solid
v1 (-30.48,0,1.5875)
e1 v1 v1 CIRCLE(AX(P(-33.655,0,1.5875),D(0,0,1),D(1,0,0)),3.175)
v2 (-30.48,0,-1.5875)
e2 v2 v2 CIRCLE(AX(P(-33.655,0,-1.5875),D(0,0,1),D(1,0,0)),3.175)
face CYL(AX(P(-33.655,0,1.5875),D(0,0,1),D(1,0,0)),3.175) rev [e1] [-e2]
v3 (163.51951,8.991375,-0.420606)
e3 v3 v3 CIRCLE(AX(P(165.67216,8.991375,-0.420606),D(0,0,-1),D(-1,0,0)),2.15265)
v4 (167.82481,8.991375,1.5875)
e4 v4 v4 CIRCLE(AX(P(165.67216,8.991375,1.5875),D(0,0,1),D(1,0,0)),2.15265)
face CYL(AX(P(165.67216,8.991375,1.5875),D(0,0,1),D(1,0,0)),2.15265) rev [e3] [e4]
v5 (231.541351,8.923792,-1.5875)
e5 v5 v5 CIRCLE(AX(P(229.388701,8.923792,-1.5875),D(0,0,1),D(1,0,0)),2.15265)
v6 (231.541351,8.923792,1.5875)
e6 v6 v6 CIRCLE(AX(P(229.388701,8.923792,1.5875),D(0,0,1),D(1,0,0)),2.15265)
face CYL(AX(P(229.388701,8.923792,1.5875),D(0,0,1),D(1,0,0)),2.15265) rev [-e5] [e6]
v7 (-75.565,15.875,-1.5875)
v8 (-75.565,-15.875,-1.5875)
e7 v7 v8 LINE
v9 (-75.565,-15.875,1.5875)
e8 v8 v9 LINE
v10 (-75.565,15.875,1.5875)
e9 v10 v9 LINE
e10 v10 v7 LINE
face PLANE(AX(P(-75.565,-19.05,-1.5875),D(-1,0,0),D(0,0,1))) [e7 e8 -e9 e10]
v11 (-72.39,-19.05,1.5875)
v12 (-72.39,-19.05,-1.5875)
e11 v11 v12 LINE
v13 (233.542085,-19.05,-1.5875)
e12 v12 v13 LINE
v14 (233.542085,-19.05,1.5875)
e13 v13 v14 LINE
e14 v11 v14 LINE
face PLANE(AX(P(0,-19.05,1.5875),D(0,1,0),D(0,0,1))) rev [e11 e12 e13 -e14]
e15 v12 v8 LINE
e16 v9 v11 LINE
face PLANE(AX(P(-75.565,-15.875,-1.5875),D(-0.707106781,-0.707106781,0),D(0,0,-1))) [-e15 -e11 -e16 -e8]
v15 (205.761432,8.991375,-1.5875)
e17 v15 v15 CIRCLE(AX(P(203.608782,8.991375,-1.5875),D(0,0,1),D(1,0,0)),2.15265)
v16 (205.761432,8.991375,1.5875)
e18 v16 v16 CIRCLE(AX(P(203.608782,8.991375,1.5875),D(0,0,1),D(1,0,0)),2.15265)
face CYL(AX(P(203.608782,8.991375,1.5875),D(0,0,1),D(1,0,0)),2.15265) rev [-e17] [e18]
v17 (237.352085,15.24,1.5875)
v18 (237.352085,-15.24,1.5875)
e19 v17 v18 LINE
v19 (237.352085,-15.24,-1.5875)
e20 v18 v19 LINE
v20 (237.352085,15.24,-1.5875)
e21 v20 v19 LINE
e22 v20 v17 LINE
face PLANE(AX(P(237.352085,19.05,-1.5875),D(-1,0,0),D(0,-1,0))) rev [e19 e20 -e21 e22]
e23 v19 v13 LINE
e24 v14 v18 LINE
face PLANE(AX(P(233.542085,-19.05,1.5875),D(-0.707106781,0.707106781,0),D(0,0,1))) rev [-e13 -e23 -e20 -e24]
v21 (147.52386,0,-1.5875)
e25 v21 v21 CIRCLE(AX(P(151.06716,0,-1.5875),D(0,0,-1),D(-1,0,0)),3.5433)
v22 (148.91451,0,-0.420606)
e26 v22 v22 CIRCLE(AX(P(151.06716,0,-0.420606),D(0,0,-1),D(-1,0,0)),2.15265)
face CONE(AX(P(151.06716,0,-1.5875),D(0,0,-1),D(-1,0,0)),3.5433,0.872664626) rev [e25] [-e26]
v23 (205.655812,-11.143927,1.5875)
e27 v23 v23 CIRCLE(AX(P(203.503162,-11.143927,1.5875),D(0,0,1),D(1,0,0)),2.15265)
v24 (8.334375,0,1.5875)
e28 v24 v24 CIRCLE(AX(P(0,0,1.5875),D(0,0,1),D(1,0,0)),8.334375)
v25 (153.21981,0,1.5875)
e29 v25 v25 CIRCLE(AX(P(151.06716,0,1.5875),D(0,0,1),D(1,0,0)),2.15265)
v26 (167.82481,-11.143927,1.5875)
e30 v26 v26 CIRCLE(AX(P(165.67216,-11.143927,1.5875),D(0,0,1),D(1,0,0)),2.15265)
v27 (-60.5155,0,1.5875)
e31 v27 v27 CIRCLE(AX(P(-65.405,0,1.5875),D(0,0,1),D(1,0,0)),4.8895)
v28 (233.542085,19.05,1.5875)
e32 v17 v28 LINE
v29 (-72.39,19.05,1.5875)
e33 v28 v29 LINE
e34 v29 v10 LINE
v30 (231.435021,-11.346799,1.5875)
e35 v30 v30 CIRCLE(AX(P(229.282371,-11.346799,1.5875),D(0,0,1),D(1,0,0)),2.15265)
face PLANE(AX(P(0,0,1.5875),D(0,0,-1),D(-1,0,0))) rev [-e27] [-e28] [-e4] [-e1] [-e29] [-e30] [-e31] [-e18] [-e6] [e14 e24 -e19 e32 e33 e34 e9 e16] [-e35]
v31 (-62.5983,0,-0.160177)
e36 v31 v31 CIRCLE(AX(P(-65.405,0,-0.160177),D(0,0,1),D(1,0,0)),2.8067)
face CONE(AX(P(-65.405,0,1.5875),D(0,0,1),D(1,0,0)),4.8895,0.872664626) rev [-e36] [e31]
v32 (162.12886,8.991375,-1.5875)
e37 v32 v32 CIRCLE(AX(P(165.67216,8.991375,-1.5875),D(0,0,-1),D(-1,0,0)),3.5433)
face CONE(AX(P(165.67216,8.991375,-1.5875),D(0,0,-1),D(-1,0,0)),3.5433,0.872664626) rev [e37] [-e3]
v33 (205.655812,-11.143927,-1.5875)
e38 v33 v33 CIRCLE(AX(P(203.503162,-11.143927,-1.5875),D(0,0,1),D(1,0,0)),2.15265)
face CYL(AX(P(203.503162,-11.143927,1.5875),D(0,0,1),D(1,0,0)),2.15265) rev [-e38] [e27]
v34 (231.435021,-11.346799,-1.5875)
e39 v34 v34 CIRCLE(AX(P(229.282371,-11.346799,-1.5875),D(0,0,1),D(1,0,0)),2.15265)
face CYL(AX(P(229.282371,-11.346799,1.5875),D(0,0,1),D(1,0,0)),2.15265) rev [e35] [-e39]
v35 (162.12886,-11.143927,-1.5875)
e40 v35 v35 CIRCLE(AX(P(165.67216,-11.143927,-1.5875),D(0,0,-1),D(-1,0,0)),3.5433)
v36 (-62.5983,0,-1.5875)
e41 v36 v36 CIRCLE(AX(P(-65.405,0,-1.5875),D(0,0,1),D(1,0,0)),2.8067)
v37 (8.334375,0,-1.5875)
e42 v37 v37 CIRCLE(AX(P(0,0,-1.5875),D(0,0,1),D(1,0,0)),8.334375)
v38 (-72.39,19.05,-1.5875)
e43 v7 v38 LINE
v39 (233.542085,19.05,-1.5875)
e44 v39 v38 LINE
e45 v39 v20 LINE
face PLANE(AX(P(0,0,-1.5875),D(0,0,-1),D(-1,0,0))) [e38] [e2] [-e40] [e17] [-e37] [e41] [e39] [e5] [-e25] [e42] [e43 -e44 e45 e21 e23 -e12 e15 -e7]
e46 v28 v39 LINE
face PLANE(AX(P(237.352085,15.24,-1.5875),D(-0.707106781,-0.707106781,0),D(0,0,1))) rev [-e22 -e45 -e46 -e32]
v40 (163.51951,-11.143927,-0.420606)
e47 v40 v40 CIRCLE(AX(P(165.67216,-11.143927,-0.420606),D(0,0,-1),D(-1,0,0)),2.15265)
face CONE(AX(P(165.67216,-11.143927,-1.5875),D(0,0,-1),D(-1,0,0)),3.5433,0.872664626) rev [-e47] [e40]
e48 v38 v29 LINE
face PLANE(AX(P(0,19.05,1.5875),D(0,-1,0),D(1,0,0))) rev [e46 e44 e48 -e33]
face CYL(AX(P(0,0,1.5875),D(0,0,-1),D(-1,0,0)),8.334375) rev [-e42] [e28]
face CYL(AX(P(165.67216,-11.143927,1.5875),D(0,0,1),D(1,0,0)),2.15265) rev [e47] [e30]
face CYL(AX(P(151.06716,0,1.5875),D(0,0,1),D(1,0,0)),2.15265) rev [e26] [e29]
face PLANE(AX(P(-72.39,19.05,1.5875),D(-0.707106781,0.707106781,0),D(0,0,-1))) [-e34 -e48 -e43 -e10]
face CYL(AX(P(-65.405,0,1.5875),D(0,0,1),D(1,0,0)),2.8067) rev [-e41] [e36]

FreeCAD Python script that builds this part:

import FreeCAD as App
import Part
import Sketcher
from FreeCAD import Vector
Q = App.Units.Quantity


def edges_at(feature, points):
    """Names of the edges that pass closest to the given points."""
    edges = feature.Shape.Edges
    near = lambda p: min(range(len(edges)), key=lambda i: edges[i].distToShape(Part.Vertex(*p))[0])
    return sorted({f"Edge{near(p) + 1}" for p in points})


def add_polygon(sketch, points):
    """Adds a closed chain of lines whose ends are joined by coincident constraints."""
    first, n = sketch.GeometryCount, len(points)
    for a, b in zip(points, points[1:] + points[:1]):
        sketch.addGeometry(Part.LineSegment(App.Vector(*a, 0), App.Vector(*b, 0)), False)
    for i in range(n):
        sketch.addConstraint(Sketcher.Constraint("Coincident", first + i, 2, first + (i + 1) % n, 1))

doc = App.newDocument("Part")
body = doc.addObject("PartDesign::Body", "Body")

# Sketch on XY plane
sketch1 = doc.addObject("Sketcher::SketchObject", "Sketch")
body.addObject(sketch1)
sketch1.AttachmentSupport = (doc.XY_Plane, [""])
sketch1.MapMode = "FlatFace"
add_polygon(sketch1, [(-29, 19), (-29, -19), (247, -19), (254, 19)])  # lines 0-3
sketch1.addGeometry(Part.Circle(Vector(0, 0, 0), Vector(0, 0, 1), 8), False)  # 4
sketch1.addConstraint([
    Sketcher.Constraint("Vertical", 0),
    Sketcher.Constraint("Horizontal", 1),
    Sketcher.Constraint("Horizontal", 3),
    Sketcher.Constraint("Coincident", 4, 3, -1, 1),
    Sketcher.Constraint("Diameter", 4, Q("0.65625 in")),
    Sketcher.Constraint("DistanceY", 0, 2, 0, 1, Q("1.5 in")),
    Sketcher.Constraint("DistanceX", -1, 1, 2, 2, Q("10 in")),
    Sketcher.Constraint("Angle", 2, Q("80 deg")),
    Sketcher.Constraint("DistanceX", 3, 2, 3, 1, Q("11.125 in")),
    Sketcher.Constraint("DistanceY", 0, 2, -1, 1, Q("0.75 in")),
])
pad1 = doc.addObject("PartDesign::Pad", "Pad")
body.addObject(pad1)
pad1.Profile = sketch1
pad1.Length = Q("0.125 in")
pad1.Midplane = True

# Sketch on XY plane
sketch2 = doc.addObject("Sketcher::SketchObject", "Sketch001")
body.addObject(sketch2)
sketch2.AttachmentSupport = (doc.XY_Plane, [""])
sketch2.MapMode = "FlatFace"
sketch2.AttachmentOffset = App.Placement(Vector(0, 0, 0.0625 * 25.4), App.Rotation())
sketch2.addGeometry([
    Part.Circle(Vector(229.4, 8.9, 0), Vector(0, 0, 1), 2.2),  # 0
    Part.Circle(Vector(229.3, -11.3, 0), Vector(0, 0, 1), 2.2),  # 1
    Part.Circle(Vector(203.5, -11.1, 0), Vector(0, 0, 1), 2.2),  # 2
    Part.Circle(Vector(203.6, 9, 0), Vector(0, 0, 1), 2.2),  # 3
    Part.Circle(Vector(165.7, 9, 0), Vector(0, 0, 1), 2.2),  # 4
    Part.Circle(Vector(165.7, -11.1, 0), Vector(0, 0, 1), 2.2),  # 5
    Part.Circle(Vector(151.1, 0, 0), Vector(0, 0, 1), 2.2),  # 6
], False)
sketch2.addConstraint([
    Sketcher.Constraint("Equal", 0, 1),
    Sketcher.Constraint("Equal", 1, 2),
    Sketcher.Constraint("Equal", 2, 3),
    Sketcher.Constraint("Equal", 3, 4),
    Sketcher.Constraint("Equal", 4, 5),
    Sketcher.Constraint("Equal", 5, 6),
    Sketcher.Constraint("PointOnObject", 6, 3, -1),
    Sketcher.Constraint("Horizontal", 3, 3, 4, 3),
    Sketcher.Constraint("Horizontal", 2, 3, 5, 3),
    Sketcher.Constraint("Vertical", 4, 3, 5, 3),
    Sketcher.Constraint("Diameter", 0, Q("0.1695 in")),
    Sketcher.Constraint("DistanceX", 6, 3, 4, 3, Q("0.575 in")),
    Sketcher.Constraint("DistanceX", -1, 1, 0, 3, 229.388701),
    Sketcher.Constraint("DistanceY", 1, 3, -1, 1, 11.346799),
    Sketcher.Constraint("DistanceY", -1, 1, 0, 3, 8.923792),
    Sketcher.Constraint("DistanceX", -1, 1, 1, 3, 229.282371),
    Sketcher.Constraint("DistanceX", -1, 1, 2, 3, 203.503162),
    Sketcher.Constraint("DistanceX", -1, 1, 4, 3, 165.67216),
    Sketcher.Constraint("DistanceY", 1, 3, 2, 3, 0.202872),
    Sketcher.Constraint("DistanceX", 2, 3, 3, 3, 0.105621),
    Sketcher.Constraint("DistanceY", -1, 1, 3, 3, 8.991375),
])
doc.recompute()
hole = doc.addObject("PartDesign::Hole", "Hole")
body.addObject(hole)
hole.Profile = sketch2
hole.ThreadType = "None"
hole.Diameter = Q("0.1695 in")
hole.DepthType = "ThroughAll"

# Sketch on XY plane
sketch3 = doc.addObject("Sketcher::SketchObject", "Sketch002")
body.addObject(sketch3)
sketch3.AttachmentSupport = (doc.XY_Plane, [""])
sketch3.MapMode = "FlatFace"
sketch3.AttachmentOffset = App.Placement(Vector(0, 0, 0.0625 * 25.4), App.Rotation())
add_polygon(sketch3, [(247, -19), (254, 19), (237, 19), (237, -19)])  # lines 0-3
sketch3.addConstraint([
    Sketcher.Constraint("Horizontal", 1),
    Sketcher.Constraint("Vertical", 2),
    Sketcher.Constraint("Horizontal", 3),
    Sketcher.Constraint("DistanceY", 2, 2, 2, 1, Q("1.5 in")),
    Sketcher.Constraint("DistanceX", -1, 1, 0, 2, Q("10 in")),
    Sketcher.Constraint("Angle", 0, Q("80 deg")),
    Sketcher.Constraint("DistanceY", -1, 1, 0, 2, Q("0.75 in")),
    Sketcher.Constraint("DistanceX", 1, 2, 1, 1, 16.647915),
])
pocket1 = doc.addObject("PartDesign::Pocket", "Pocket")
body.addObject(pocket1)
pocket1.Profile = sketch3
pocket1.Type = "ThroughAll"
doc.recompute()

chamfer = doc.addObject("PartDesign::Chamfer", "Chamfer")
body.addObject(chamfer)
chamfer.Base = (pocket1, edges_at(pocket1, [
    (-28.575, -19.05, 0),
    (-28.575, 19.05, 0),
    (237.352, 19.05, 0),
    (237.352, -19.05, 0),
]))
chamfer.Size = Q("0.15 in")

# Sketch on XY plane
sketch4 = doc.addObject("Sketcher::SketchObject", "Sketch003")
body.addObject(sketch4)
sketch4.AttachmentSupport = (doc.XY_Plane, [""])
sketch4.MapMode = "FlatFace"
sketch4.AttachmentOffset = App.Placement(Vector(0, 0, 0.0625 * 25.4), App.Rotation())
add_polygon(sketch4, [(-76, 19), (-76, -19), (-25, -19), (-25, 19)])  # lines 0-3
sketch4.addConstraint([
    Sketcher.Constraint("Vertical", 0),
    Sketcher.Constraint("Horizontal", 1),
    Sketcher.Constraint("Vertical", 2),
    Sketcher.Constraint("Horizontal", 3),
    Sketcher.Constraint("DistanceX", 1, 1, 1, 2, Q("2 in")),
    Sketcher.Constraint("DistanceY", 0, 2, 0, 1, Q("1.5 in")),
    Sketcher.Constraint("DistanceY", 0, 2, -1, 1, Q("0.75 in")),
    Sketcher.Constraint("DistanceX", 0, 2, -1, 1, Q("2.975 in")),
])
pad2 = doc.addObject("PartDesign::Pad", "Pad001")
body.addObject(pad2)
pad2.Profile = sketch4
pad2.Length = Q("0.125 in")
pad2.Reversed = True
doc.recompute()

chamfer2 = doc.addObject("PartDesign::Chamfer", "Chamfer001")
body.addObject(chamfer2)
chamfer2.Base = (pad2, edges_at(pad2, [(-75.565, -19.05, 0), (-75.565, 19.05, 0)]))
chamfer2.Size = Q("0.125 in")

# Sketch on YZ plane
sketch5 = doc.addObject("Sketcher::SketchObject", "Sketch004")
body.addObject(sketch5)
sketch5.AttachmentSupport = (doc.YZ_Plane, [""])
sketch5.MapMode = "FlatFace"
sketch5.AttachmentOffset = App.Placement(Vector(0, 0, -2.575 * 25.4), App.Rotation())
add_polygon(sketch5, [(0, -1.6), (0, 1.6), (-4.9, 1.6), (-2.8, -0.2), (-2.8, -1.6)])  # lines 0-4
sketch5.addConstraint([
    Sketcher.Constraint("Vertical", 0),
    Sketcher.Constraint("Horizontal", 1),
    Sketcher.Constraint("Vertical", 3),
    Sketcher.Constraint("Horizontal", 4),
    Sketcher.Constraint("Symmetric", 0, 2, 4, 2, -1, 1),
    Sketcher.Constraint("Angle", 2, Q("-40 deg")),
    Sketcher.Constraint("DistanceY", 0, 1, 0, 2, Q("0.125 in")),
    Sketcher.Constraint("DistanceX", 1, 2, 1, 1, Q("0.1925 in")),
    Sketcher.Constraint("DistanceX", 4, 1, 4, 2, Q("0.1105 in")),
])
groove = doc.addObject("PartDesign::Groove", "Groove")
body.addObject(groove)
groove.Profile = sketch5
groove.ReferenceAxis = (sketch5, ["V_Axis"])
groove.Angle = 360

# Sketch on XY plane
sketch6 = doc.addObject("Sketcher::SketchObject", "Sketch005")
body.addObject(sketch6)
sketch6.AttachmentSupport = (doc.XY_Plane, [""])
sketch6.MapMode = "FlatFace"
sketch6.AttachmentOffset = App.Placement(Vector(0, 0, 0.0625 * 25.4), App.Rotation())
sketch6.addGeometry(Part.Circle(Vector(-33.7, 0, 0), Vector(0, 0, 1), 3.2), False)
sketch6.addConstraint([
    Sketcher.Constraint("PointOnObject", 0, 3, -1),
    Sketcher.Constraint("Diameter", 0, Q("0.25 in")),
    Sketcher.Constraint("DistanceX", 0, 3, -1, 1, Q("1.325 in")),
])
doc.recompute()
hole2 = doc.addObject("PartDesign::Hole", "Hole001")
body.addObject(hole2)
hole2.Profile = sketch6
hole2.ThreadType = "None"
hole2.Diameter = Q("0.25 in")
hole2.DepthType = "ThroughAll"

# Sketch on XY plane
sketch7 = doc.addObject("Sketcher::SketchObject", "Sketch006")
body.addObject(sketch7)
sketch7.AttachmentSupport = (doc.XY_Plane, [""])
sketch7.MapMode = "FlatFace"
sketch7.AttachmentOffset = App.Placement(Vector(0, 0, -0.0625 * 25.4), App.Rotation())
sketch7.addGeometry([
    Part.Circle(Vector(151.1, 0, 0), Vector(0, 0, 1), 2.2),
    Part.Circle(Vector(165.7, -11.1, 0), Vector(0, 0, 1), 2.2),
    Part.Circle(Vector(165.7, 9, 0), Vector(0, 0, 1), 2.2),
], False)
sketch7.addConstraint([
    Sketcher.Constraint("Equal", 0, 1),
    Sketcher.Constraint("Equal", 1, 2),
    Sketcher.Constraint("PointOnObject", 0, 3, -1),
    Sketcher.Constraint("Vertical", 1, 3, 2, 3),
    Sketcher.Constraint("Diameter", 0, Q("0.1695 in")),
    Sketcher.Constraint("DistanceX", 0, 3, 1, 3, Q("0.575 in")),
    Sketcher.Constraint("DistanceX", -1, 1, 0, 3, 151.06716),
    Sketcher.Constraint("DistanceY", 1, 3, -1, 1, 11.143927),
    Sketcher.Constraint("DistanceY", -1, 1, 2, 3, 8.991375),
])
doc.recompute()
hole3 = doc.addObject("PartDesign::Hole", "Hole002")
body.addObject(hole3)
hole3.Profile = sketch7
hole3.ThreadType = "None"
hole3.Diameter = Q("0.1695 in")
hole3.DepthType = "ThroughAll"
hole3.HoleCutType = "Countersink"
hole3.HoleCutDiameter = Q("0.279 in")
hole3.HoleCutCountersinkAngle = 100
hole3.Reversed = True

doc.recompute()
